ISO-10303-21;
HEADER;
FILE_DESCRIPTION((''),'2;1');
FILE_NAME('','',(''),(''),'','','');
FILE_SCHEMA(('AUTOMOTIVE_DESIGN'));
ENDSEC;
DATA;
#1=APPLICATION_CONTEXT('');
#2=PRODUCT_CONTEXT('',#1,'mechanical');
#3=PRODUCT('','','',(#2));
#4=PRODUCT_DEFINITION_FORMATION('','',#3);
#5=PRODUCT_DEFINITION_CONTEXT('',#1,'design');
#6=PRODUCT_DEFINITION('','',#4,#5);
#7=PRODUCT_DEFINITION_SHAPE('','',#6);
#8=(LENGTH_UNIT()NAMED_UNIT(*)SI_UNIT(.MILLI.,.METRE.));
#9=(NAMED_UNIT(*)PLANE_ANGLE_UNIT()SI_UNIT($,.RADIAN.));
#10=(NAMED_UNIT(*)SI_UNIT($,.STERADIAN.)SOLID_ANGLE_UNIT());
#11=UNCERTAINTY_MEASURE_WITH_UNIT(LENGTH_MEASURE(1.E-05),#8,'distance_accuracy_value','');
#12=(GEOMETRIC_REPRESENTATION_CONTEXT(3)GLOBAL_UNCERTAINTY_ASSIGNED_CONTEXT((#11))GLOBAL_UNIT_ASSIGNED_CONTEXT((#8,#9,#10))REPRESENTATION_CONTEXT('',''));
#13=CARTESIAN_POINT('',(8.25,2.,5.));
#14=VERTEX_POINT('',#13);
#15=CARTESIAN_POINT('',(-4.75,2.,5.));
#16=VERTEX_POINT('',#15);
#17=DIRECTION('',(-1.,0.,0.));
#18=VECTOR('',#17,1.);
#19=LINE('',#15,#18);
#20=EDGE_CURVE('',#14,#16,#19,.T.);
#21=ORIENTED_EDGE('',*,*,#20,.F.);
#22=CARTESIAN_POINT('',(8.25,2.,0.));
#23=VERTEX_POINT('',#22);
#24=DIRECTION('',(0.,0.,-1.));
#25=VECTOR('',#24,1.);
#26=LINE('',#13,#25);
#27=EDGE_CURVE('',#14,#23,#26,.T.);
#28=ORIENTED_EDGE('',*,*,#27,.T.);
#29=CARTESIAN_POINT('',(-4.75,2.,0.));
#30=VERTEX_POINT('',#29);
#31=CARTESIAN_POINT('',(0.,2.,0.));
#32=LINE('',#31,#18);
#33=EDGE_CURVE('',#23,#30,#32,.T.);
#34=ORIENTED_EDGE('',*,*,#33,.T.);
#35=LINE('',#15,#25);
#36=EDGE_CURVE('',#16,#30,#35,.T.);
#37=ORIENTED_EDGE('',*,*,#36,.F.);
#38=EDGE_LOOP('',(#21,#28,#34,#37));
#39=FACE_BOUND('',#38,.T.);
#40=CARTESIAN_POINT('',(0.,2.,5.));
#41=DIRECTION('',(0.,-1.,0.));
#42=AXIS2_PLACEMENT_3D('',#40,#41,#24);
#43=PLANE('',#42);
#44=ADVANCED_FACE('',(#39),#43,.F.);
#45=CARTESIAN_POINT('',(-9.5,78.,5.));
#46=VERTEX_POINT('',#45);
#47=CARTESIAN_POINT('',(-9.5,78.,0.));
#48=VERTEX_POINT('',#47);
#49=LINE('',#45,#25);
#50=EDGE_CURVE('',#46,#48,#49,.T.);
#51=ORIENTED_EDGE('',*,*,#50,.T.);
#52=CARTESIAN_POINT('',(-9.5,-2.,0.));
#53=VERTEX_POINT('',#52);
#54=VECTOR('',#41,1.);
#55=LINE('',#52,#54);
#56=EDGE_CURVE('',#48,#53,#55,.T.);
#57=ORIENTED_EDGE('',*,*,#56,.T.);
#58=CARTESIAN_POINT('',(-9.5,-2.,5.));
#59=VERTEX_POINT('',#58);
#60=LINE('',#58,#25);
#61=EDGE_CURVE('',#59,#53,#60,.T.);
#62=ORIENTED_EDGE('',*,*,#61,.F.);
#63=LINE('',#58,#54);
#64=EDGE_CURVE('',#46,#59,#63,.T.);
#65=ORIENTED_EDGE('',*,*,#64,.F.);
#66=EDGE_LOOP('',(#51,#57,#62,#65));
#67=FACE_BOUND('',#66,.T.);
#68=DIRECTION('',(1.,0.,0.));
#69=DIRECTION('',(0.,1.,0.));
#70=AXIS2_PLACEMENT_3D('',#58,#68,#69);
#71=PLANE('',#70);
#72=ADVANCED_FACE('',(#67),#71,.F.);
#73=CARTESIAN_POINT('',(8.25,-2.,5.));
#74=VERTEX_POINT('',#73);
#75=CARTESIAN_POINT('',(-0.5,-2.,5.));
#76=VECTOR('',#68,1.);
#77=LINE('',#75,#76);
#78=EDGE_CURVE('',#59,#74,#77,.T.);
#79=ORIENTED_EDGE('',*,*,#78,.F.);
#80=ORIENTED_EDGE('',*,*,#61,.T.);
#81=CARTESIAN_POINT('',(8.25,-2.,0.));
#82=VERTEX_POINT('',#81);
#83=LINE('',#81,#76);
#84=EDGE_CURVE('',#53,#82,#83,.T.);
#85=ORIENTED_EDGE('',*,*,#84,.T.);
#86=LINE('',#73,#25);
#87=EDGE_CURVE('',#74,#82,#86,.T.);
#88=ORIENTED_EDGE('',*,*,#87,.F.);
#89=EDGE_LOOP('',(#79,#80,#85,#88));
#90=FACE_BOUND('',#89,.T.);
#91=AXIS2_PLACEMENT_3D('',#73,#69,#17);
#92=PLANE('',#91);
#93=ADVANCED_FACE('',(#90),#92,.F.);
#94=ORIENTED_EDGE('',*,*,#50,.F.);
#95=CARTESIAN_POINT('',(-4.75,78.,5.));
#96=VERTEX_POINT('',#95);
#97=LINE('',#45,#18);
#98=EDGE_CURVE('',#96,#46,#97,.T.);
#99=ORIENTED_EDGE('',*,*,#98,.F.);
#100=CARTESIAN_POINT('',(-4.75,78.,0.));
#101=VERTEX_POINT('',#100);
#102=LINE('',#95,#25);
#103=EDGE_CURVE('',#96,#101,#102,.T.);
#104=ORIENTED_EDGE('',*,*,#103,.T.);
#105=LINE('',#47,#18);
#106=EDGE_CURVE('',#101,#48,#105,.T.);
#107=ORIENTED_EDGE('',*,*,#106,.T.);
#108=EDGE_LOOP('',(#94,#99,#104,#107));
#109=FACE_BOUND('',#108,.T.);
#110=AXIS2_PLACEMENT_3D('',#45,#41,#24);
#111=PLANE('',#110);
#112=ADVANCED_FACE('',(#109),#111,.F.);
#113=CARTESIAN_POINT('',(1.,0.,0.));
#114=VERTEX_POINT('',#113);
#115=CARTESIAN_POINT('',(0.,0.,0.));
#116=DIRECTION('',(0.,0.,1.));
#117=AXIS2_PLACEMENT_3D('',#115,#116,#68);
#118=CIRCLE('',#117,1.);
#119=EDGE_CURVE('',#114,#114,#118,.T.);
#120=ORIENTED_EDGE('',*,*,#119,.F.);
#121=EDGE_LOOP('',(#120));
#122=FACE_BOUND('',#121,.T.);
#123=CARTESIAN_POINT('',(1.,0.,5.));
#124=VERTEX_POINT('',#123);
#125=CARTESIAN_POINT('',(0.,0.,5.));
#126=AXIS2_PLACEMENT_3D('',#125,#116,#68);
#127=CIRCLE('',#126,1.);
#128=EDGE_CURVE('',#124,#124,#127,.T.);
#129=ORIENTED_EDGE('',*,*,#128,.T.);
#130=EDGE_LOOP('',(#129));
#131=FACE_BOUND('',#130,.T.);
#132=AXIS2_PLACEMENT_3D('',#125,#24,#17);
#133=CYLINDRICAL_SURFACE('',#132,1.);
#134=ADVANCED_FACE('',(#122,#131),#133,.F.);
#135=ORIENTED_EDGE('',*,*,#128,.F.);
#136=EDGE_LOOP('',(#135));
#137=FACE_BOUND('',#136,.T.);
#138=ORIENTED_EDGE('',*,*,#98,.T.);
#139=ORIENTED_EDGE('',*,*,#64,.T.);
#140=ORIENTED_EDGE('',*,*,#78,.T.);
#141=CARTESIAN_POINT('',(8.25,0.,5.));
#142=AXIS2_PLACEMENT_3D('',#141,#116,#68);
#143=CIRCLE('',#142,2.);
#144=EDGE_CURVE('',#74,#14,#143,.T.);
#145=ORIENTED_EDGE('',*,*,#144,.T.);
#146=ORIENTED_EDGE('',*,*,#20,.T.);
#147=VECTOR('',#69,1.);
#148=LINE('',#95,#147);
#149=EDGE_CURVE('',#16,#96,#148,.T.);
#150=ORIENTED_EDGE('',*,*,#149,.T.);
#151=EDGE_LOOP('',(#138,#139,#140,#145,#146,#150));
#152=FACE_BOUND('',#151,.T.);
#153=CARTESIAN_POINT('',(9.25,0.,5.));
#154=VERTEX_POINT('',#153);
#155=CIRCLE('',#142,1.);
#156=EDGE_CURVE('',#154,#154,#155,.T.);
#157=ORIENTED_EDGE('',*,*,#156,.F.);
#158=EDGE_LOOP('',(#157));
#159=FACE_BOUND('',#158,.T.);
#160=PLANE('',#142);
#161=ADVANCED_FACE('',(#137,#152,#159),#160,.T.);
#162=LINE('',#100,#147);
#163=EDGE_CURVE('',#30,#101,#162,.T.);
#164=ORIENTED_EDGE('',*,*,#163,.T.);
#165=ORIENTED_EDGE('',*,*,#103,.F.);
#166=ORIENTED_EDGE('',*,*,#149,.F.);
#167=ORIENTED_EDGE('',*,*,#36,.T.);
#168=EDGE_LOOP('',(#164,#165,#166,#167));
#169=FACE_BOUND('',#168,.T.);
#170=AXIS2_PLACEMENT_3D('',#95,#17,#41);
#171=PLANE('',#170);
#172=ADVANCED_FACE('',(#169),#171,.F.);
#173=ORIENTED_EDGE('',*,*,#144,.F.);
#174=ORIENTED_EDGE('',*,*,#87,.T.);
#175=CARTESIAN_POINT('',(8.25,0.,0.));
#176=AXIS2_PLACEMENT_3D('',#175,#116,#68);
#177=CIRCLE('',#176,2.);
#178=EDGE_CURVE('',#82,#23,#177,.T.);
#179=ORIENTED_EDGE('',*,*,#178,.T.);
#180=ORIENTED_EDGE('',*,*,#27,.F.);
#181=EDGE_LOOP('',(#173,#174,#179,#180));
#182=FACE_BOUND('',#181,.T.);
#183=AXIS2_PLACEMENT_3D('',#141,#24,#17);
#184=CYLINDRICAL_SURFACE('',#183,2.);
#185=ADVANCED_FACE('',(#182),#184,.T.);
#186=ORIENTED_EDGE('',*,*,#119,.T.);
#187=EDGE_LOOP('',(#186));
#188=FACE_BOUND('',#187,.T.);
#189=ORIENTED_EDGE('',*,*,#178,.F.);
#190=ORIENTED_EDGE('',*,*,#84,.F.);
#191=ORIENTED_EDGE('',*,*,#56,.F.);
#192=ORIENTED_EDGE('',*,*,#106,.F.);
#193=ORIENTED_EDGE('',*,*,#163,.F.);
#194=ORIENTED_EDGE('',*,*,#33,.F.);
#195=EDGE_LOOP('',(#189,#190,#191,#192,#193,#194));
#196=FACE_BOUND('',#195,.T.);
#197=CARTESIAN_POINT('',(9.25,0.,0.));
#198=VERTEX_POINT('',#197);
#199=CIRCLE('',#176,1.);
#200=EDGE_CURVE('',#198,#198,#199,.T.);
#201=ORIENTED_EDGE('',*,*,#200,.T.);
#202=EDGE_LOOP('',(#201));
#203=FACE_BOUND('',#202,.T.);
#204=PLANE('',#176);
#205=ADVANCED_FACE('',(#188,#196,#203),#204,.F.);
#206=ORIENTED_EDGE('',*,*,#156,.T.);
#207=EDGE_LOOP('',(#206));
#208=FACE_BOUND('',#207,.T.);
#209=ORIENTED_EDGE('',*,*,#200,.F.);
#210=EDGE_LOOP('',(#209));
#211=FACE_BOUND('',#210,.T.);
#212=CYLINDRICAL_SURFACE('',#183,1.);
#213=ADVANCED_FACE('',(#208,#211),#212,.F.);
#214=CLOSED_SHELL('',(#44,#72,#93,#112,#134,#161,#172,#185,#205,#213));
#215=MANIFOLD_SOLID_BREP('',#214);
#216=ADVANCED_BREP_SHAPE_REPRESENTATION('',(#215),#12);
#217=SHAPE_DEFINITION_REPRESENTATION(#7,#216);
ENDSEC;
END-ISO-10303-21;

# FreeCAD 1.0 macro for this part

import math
import FreeCAD as App
import Part
import Sketcher
Q = App.Units.Quantity

doc = App.newDocument("Part")
body = doc.addObject("PartDesign::Body", "Body")

# Sketch on XY plane
sketch1 = body.newObject("Sketcher::SketchObject", "Sketch")
sketch1.AttachmentSupport = (doc.getObject("XY_Plane"), [""])
sketch1.MapMode = "FlatFace"
sketch1.addGeometry(Part.ArcOfCircle(Part.Circle(App.Vector(8.25, 0, 0), App.Vector(0, 0, 1), 2), math.radians(-90), math.radians(90)), False)
sketch1.addGeometry(Part.LineSegment(App.Vector(8.25, 2, 0), App.Vector(-4.75, 2, 0)), False)
sketch1.addGeometry(Part.LineSegment(App.Vector(-4.75, 2, 0), App.Vector(-4.75, 78, 0)), False)
sketch1.addGeometry(Part.LineSegment(App.Vector(-4.75, 78, 0), App.Vector(-9.5, 78, 0)), False)
sketch1.addGeometry(Part.LineSegment(App.Vector(-9.5, 78, 0), App.Vector(-9.5, -2, 0)), False)
sketch1.addGeometry(Part.LineSegment(App.Vector(-9.5, -2, 0), App.Vector(8.25, -2, 0)), False)
sketch1.addGeometry(Part.Circle(App.Vector(8.25, 0, 0), App.Vector(0, 0, 1), 1), False)
sketch1.addGeometry(Part.Circle(App.Vector(0, 0, 0), App.Vector(0, 0, 1), 1), False)
sketch1.addConstraint(Sketcher.Constraint("Tangent", 0, 2, 1, 1))
sketch1.addConstraint(Sketcher.Constraint("Coincident", 1, 2, 2, 1))
sketch1.addConstraint(Sketcher.Constraint("Coincident", 2, 2, 3, 1))
sketch1.addConstraint(Sketcher.Constraint("Coincident", 3, 2, 4, 1))
sketch1.addConstraint(Sketcher.Constraint("Coincident", 4, 2, 5, 1))
sketch1.addConstraint(Sketcher.Constraint("Tangent", 5, 2, 0, 1))
sketch1.addConstraint(Sketcher.Constraint("Horizontal", 1))
sketch1.addConstraint(Sketcher.Constraint("Vertical", 2))
sketch1.addConstraint(Sketcher.Constraint("Horizontal", 3))
sketch1.addConstraint(Sketcher.Constraint("Vertical", 4))
sketch1.addConstraint(Sketcher.Constraint("Horizontal", 5))
sketch1.addConstraint(Sketcher.Constraint("Coincident", 7, 3, -1, 1))
sketch1.addConstraint(Sketcher.Constraint("Coincident", 6, 3, 0, 3))
sketch1.addConstraint(Sketcher.Constraint("Equal", 6, 7))
sketch1.addConstraint(Sketcher.Constraint("PointOnObject", 0, 3, -1))
sketch1.addConstraint(Sketcher.Constraint("Diameter", 6, Q("2 mm")))
sketch1.addConstraint(Sketcher.Constraint("Radius", 0, Q("2 mm")))
sketch1.addConstraint(Sketcher.Constraint("DistanceX", 1, 2, 1, 1, Q("13 mm")))
sketch1.addConstraint(Sketcher.Constraint("DistanceY", 2, 1, 2, 2, Q("76 mm")))
sketch1.addConstraint(Sketcher.Constraint("DistanceX", 3, 2, 3, 1, Q("4.75 mm")))
sketch1.addConstraint(Sketcher.Constraint("DistanceX", 3, 2, -1, 1, Q("9.5 mm")))
pad1 = body.newObject("PartDesign::Pad", "Pad")
pad1.Profile = sketch1
pad1.Length = 5

doc.recompute()
